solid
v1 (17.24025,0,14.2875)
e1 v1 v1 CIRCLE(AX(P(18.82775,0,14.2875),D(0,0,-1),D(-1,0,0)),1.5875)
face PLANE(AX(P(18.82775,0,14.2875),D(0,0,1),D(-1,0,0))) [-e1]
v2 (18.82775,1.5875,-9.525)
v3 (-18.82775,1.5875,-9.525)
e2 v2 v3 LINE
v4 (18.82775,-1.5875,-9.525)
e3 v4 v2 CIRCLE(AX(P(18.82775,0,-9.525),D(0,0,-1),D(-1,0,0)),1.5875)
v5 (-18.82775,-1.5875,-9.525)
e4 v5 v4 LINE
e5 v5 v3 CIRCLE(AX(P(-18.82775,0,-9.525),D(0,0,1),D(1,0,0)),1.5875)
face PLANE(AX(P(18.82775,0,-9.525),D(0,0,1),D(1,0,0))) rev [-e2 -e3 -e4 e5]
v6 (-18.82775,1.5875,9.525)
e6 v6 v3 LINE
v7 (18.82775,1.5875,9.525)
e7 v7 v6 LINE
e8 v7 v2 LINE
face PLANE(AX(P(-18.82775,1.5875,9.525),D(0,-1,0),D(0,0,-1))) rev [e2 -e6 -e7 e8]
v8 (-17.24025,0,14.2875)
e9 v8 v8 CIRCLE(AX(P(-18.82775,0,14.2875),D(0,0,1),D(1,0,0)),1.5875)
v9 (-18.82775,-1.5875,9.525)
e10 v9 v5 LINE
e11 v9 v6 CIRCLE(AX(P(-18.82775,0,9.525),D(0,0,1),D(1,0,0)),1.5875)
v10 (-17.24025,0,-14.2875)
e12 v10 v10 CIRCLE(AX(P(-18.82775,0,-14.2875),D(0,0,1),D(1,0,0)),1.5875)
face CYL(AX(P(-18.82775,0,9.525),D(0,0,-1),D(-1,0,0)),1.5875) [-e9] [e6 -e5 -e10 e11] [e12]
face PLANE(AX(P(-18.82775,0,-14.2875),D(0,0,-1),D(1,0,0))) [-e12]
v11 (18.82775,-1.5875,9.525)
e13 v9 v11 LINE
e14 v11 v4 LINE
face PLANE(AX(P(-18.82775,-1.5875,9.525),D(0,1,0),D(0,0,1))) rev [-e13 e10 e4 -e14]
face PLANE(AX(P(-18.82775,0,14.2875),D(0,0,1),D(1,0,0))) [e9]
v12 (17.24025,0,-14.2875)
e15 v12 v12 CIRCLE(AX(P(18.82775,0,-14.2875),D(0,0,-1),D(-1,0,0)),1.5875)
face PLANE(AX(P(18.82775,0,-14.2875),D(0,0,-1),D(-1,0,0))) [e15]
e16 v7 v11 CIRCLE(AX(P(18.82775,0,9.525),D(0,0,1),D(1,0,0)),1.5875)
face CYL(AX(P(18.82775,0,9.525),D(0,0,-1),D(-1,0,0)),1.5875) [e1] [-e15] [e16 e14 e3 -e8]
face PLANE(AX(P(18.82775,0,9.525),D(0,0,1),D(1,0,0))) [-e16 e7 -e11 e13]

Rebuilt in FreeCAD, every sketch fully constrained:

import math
import FreeCAD as App
import Part
import Sketcher
Q = App.Units.Quantity

doc = App.newDocument("Part")
body = doc.addObject("PartDesign::Body", "Body")

# Sketch on XY plane
sketch1 = body.newObject("Sketcher::SketchObject", "Sketch")
sketch1.AttachmentSupport = (doc.getObject("XY_Plane"), [""])
sketch1.MapMode = "FlatFace"
sketch1.addGeometry(Part.LineSegment(App.Vector(18.8, 1.6, 0), App.Vector(-18.8, 1.6, 0)), False)
sketch1.addGeometry(Part.ArcOfCircle(Part.Circle(App.Vector(-18.8, 0, 0), App.Vector(0, 0, 1), 1.6), math.radians(90), math.radians(270)), False)
sketch1.addGeometry(Part.LineSegment(App.Vector(-18.8, -1.6, 0), App.Vector(18.8, -1.6, 0)), False)
sketch1.addGeometry(Part.ArcOfCircle(Part.Circle(App.Vector(18.8, 0, 0), App.Vector(0, 0, 1), 1.6), math.radians(-90), math.radians(90)), False)
sketch1.addConstraint(Sketcher.Constraint("Tangent", 0, 2, 1, 1))
sketch1.addConstraint(Sketcher.Constraint("Tangent", 1, 2, 2, 1))
sketch1.addConstraint(Sketcher.Constraint("Tangent", 2, 2, 3, 1))
sketch1.addConstraint(Sketcher.Constraint("Tangent", 3, 2, 0, 1))
sketch1.addConstraint(Sketcher.Constraint("Horizontal", 0))
sketch1.addConstraint(Sketcher.Constraint("Horizontal", 2))
sketch1.addConstraint(Sketcher.Constraint("Symmetric", 1, 3, 3, 3, -1, 1))
sketch1.addConstraint(Sketcher.Constraint("Radius", 1, Q("0.0625 in")))
sketch1.addConstraint(Sketcher.Constraint("DistanceX", 0, 2, 0, 1, Q("1.4825 in")))
pad1 = body.newObject("PartDesign::Pad", "Pad")
pad1.Profile = sketch1
pad1.Length = Q("0.75 in")
pad1.Midplane = True

# Sketch on XY plane
sketch2 = body.newObject("Sketcher::SketchObject", "Sketch001")
sketch2.AttachmentSupport = (doc.getObject("XY_Plane"), [""])
sketch2.MapMode = "FlatFace"
sketch2.AttachmentOffset = App.Placement(App.Vector(0, 0, 0.375 * 25.4), App.Rotation())
sketch2.addGeometry(Part.Circle(App.Vector(-18.8, 0, 0), App.Vector(0, 0, 1), 1.6), False)
sketch2.addConstraint(Sketcher.Constraint("PointOnObject", 0, 3, -1))
sketch2.addConstraint(Sketcher.Constraint("Diameter", 0, Q("0.125 in")))
sketch2.addConstraint(Sketcher.Constraint("DistanceX", 0, 3, -1, 1, 18.82775))
pad2 = body.newObject("PartDesign::Pad", "Pad001")
pad2.Profile = sketch2
pad2.Length = Q("0.1875 in")
doc.recompute()

mirrored = body.newObject("PartDesign::Mirrored", "Mirrored")
mirrored.Originals = [pad2]
mirrored.MirrorPlane = (doc.getObject("YZ_Plane"), [""])
body.Tip = mirrored
doc.recompute()

mirrored2 = body.newObject("PartDesign::Mirrored", "Mirrored001")
mirrored2.Originals = [pad2]
mirrored2.MirrorPlane = (doc.getObject("XY_Plane"), [""])
body.Tip = mirrored2

# Sketch on XY plane
sketch3 = body.newObject("Sketcher::SketchObject", "Sketch002")
sketch3.AttachmentSupport = (doc.getObject("XY_Plane"), [""])
sketch3.MapMode = "FlatFace"
sketch3.AttachmentOffset = App.Placement(App.Vector(0, 0, -0.375 * 25.4), App.Rotation())
sketch3.addGeometry(Part.Circle(App.Vector(18.8, 0, 0), App.Vector(0, 0, 1), 1.6), False)
sketch3.addConstraint(Sketcher.Constraint("PointOnObject", 0, 3, -1))
sketch3.addConstraint(Sketcher.Constraint("Diameter", 0, Q("0.125 in")))
sketch3.addConstraint(Sketcher.Constraint("DistanceX", -1, 1, 0, 3, 18.82775))
pad3 = body.newObject("PartDesign::Pad", "Pad002")
pad3.Profile = sketch3
pad3.Length = Q("0.1875 in")
pad3.Reversed = True

doc.recompute()
